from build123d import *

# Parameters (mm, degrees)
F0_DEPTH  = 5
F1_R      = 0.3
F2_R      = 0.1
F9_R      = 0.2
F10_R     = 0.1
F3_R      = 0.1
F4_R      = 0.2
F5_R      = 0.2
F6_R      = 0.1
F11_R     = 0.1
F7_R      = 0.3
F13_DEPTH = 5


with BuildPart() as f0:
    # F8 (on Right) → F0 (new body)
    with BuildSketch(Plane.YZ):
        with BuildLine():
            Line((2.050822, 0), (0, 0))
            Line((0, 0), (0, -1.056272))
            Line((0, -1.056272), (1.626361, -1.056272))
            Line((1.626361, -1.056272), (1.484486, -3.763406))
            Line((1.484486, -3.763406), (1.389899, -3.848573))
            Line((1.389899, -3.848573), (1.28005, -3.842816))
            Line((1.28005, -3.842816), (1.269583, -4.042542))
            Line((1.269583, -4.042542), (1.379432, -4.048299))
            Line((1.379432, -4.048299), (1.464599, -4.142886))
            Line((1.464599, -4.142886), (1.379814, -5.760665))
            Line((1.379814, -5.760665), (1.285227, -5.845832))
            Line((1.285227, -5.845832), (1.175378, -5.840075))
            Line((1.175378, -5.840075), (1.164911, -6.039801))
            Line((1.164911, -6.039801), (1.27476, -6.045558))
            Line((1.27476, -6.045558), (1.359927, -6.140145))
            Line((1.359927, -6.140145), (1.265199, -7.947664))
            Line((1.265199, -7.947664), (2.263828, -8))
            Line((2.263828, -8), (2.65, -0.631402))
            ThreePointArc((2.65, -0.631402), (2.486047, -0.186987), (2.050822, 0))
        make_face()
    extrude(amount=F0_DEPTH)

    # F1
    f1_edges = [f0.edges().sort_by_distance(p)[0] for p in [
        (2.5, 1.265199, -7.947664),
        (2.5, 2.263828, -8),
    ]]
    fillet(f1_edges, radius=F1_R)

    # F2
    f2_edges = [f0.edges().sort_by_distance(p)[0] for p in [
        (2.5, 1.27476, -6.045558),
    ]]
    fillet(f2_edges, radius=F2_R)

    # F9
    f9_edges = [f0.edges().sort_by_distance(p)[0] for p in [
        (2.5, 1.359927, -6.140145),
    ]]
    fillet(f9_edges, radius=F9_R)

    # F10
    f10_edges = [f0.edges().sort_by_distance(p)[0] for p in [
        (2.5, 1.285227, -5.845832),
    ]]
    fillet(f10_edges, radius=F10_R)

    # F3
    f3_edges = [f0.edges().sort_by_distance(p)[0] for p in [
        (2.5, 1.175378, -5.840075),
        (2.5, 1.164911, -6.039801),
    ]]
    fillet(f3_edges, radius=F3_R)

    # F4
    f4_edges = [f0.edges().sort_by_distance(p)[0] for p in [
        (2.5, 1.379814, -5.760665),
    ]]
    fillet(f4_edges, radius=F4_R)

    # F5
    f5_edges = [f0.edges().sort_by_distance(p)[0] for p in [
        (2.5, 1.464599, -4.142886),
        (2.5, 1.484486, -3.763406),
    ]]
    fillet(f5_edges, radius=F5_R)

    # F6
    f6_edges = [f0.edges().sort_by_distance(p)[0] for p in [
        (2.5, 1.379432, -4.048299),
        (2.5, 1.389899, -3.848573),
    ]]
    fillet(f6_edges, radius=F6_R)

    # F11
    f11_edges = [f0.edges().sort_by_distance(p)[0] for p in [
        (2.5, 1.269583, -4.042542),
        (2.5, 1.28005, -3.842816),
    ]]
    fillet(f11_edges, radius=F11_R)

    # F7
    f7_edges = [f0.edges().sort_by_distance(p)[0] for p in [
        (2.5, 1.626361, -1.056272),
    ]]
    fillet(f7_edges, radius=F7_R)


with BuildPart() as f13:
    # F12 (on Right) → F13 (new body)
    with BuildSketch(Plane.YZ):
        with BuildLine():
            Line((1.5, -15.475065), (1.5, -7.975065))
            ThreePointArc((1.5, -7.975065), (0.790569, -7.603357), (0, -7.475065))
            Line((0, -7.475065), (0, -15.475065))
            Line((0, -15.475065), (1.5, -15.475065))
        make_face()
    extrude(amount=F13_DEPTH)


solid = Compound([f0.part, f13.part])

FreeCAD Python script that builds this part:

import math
import FreeCAD as App
import Part
import Sketcher
from FreeCAD import Vector
Q = App.Units.Quantity


def edges_at(feature, points):
    """Names of the edges that pass closest to the given points."""
    edges = feature.Shape.Edges
    near = lambda p: min(range(len(edges)), key=lambda i: edges[i].distToShape(Part.Vertex(*p))[0])
    return sorted({f"Edge{near(p) + 1}" for p in points})

doc = App.newDocument("Part")
body = doc.addObject("PartDesign::Body", "Body")

# Sketch on YZ plane
sketch1 = body.newObject("Sketcher::SketchObject", "Sketch")
sketch1.AttachmentSupport = (doc.getObject("YZ_Plane"), [""])
sketch1.MapMode = "FlatFace"
sketch1.addGeometry(Part.LineSegment(Vector(2.05, 0, 0), Vector(0, 0, 0)), False)
sketch1.addGeometry(Part.LineSegment(Vector(0, 0, 0), Vector(0, -1.06, 0)), False)
sketch1.addGeometry(Part.LineSegment(Vector(0, -1.06, 0), Vector(1.63, -1.06, 0)), False)
sketch1.addGeometry(Part.LineSegment(Vector(1.63, -1.06, 0), Vector(1.48, -3.76, 0)), False)
sketch1.addGeometry(Part.LineSegment(Vector(1.48, -3.76, 0), Vector(1.39, -3.85, 0)), False)
sketch1.addGeometry(Part.LineSegment(Vector(1.39, -3.85, 0), Vector(1.28, -3.84, 0)), False)
sketch1.addGeometry(Part.LineSegment(Vector(1.28, -3.84, 0), Vector(1.27, -4.04, 0)), False)
sketch1.addGeometry(Part.LineSegment(Vector(1.27, -4.04, 0), Vector(1.38, -4.05, 0)), False)
sketch1.addGeometry(Part.LineSegment(Vector(1.38, -4.05, 0), Vector(1.46, -4.14, 0)), False)
sketch1.addGeometry(Part.LineSegment(Vector(1.46, -4.14, 0), Vector(1.38, -5.76, 0)), False)
sketch1.addGeometry(Part.LineSegment(Vector(1.38, -5.76, 0), Vector(1.29, -5.85, 0)), False)
sketch1.addGeometry(Part.LineSegment(Vector(1.29, -5.85, 0), Vector(1.18, -5.84, 0)), False)
sketch1.addGeometry(Part.LineSegment(Vector(1.18, -5.84, 0), Vector(1.16, -6.04, 0)), False)
sketch1.addGeometry(Part.LineSegment(Vector(1.16, -6.04, 0), Vector(1.27, -6.05, 0)), False)
sketch1.addGeometry(Part.LineSegment(Vector(1.27, -6.05, 0), Vector(1.36, -6.14, 0)), False)
sketch1.addGeometry(Part.LineSegment(Vector(1.36, -6.14, 0), Vector(1.27, -7.95, 0)), False)
sketch1.addGeometry(Part.LineSegment(Vector(1.27, -7.95, 0), Vector(2.26, -8, 0)), False)
sketch1.addGeometry(Part.LineSegment(Vector(2.26, -8, 0), Vector(2.65, -0.63, 0)), False)
sketch1.addGeometry(Part.ArcOfCircle(Part.Circle(Vector(2.05, -0.6, 0), Vector(0, 0, 1), 0.6), math.radians(-3), math.radians(90)), False)
sketch1.addConstraint(Sketcher.Constraint("Coincident", 0, 2, 1, 1))
sketch1.addConstraint(Sketcher.Constraint("Coincident", 1, 2, 2, 1))
sketch1.addConstraint(Sketcher.Constraint("Coincident", 2, 2, 3, 1))
sketch1.addConstraint(Sketcher.Constraint("Coincident", 3, 2, 4, 1))
sketch1.addConstraint(Sketcher.Constraint("Coincident", 4, 2, 5, 1))
sketch1.addConstraint(Sketcher.Constraint("Coincident", 5, 2, 6, 1))
sketch1.addConstraint(Sketcher.Constraint("Coincident", 6, 2, 7, 1))
sketch1.addConstraint(Sketcher.Constraint("Coincident", 7, 2, 8, 1))
sketch1.addConstraint(Sketcher.Constraint("Coincident", 8, 2, 9, 1))
sketch1.addConstraint(Sketcher.Constraint("Coincident", 9, 2, 10, 1))
sketch1.addConstraint(Sketcher.Constraint("Coincident", 10, 2, 11, 1))
sketch1.addConstraint(Sketcher.Constraint("Coincident", 11, 2, 12, 1))
sketch1.addConstraint(Sketcher.Constraint("Coincident", 12, 2, 13, 1))
sketch1.addConstraint(Sketcher.Constraint("Coincident", 13, 2, 14, 1))
sketch1.addConstraint(Sketcher.Constraint("Coincident", 14, 2, 15, 1))
sketch1.addConstraint(Sketcher.Constraint("Coincident", 15, 2, 16, 1))
sketch1.addConstraint(Sketcher.Constraint("Coincident", 16, 2, 17, 1))
sketch1.addConstraint(Sketcher.Constraint("Tangent", 17, 2, 18, 1))
sketch1.addConstraint(Sketcher.Constraint("Tangent", 18, 2, 0, 1))
sketch1.addConstraint(Sketcher.Constraint("Horizontal", 0))
sketch1.addConstraint(Sketcher.Constraint("Vertical", 1))
sketch1.addConstraint(Sketcher.Constraint("Horizontal", 2))
sketch1.addConstraint(Sketcher.Constraint("Coincident", 0, 2, -1, 1))
sketch1.addConstraint(Sketcher.Constraint("Perpendicular", 3, 5))
sketch1.addConstraint(Sketcher.Constraint("Perpendicular", 5, 6))
sketch1.addConstraint(Sketcher.Constraint("Perpendicular", 6, 7))
sketch1.addConstraint(Sketcher.Constraint("Perpendicular", 4, 8))
sketch1.addConstraint(Sketcher.Constraint("Perpendicular", 7, 9))
sketch1.addConstraint(Sketcher.Constraint("Perpendicular", 8, 10))
sketch1.addConstraint(Sketcher.Constraint("Perpendicular", 9, 11))
sketch1.addConstraint(Sketcher.Constraint("Perpendicular", 11, 12))
sketch1.addConstraint(Sketcher.Constraint("Perpendicular", 12, 13))
sketch1.addConstraint(Sketcher.Constraint("Perpendicular", 10, 14))
sketch1.addConstraint(Sketcher.Constraint("Perpendicular", 13, 15))
sketch1.addConstraint(Sketcher.Constraint("Perpendicular", 15, 16))
sketch1.addConstraint(Sketcher.Constraint("Perpendicular", 16, 17))
sketch1.addConstraint(Sketcher.Constraint("Equal", 5, 7))
sketch1.addConstraint(Sketcher.Constraint("Equal", 4, 8))
sketch1.addConstraint(Sketcher.Constraint("Equal", 8, 10))
sketch1.addConstraint(Sketcher.Constraint("Equal", 7, 11))
sketch1.addConstraint(Sketcher.Constraint("Equal", 6, 12))
sketch1.addConstraint(Sketcher.Constraint("Equal", 11, 13))
sketch1.addConstraint(Sketcher.Constraint("Equal", 10, 14))
sketch1.addConstraint(Sketcher.Constraint("Radius", 18, Q("0.599999 mm")))
sketch1.addConstraint(Sketcher.Constraint("Angle", 3, Q("-93.000003 deg")))
sketch1.addConstraint(Sketcher.Constraint("Distance", 16, Q("0.999999 mm")))
sketch1.addConstraint(Sketcher.Constraint("DistanceY", 16, 2, -1, 1, Q("8 mm")))
sketch1.addConstraint(Sketcher.Constraint("Distance", 6, Q("0.2 mm")))
sketch1.addConstraint(Sketcher.Constraint("Distance", 5, Q("0.11 mm")))
sketch1.addConstraint(Sketcher.Constraint("Distance", 9, Q("1.619999 mm")))
sketch1.addConstraint(Sketcher.Constraint("Distance", 15, Q("1.81 mm")))
sketch1.addConstraint(Sketcher.Constraint("DistanceX", -1, 1, 17, 2, Q("2.65 mm")))
sketch1.addConstraint(Sketcher.Constraint("DistanceX", 2, 1, 2, 2, Q("1.626361 mm")))
sketch1.addConstraint(Sketcher.Constraint("DistanceX", -1, 1, 4, 2, Q("1.389899 mm")))
sketch1.addConstraint(Sketcher.Constraint("DistanceY", 7, 2, -1, 1, Q("4.048299 mm")))
pad1 = body.newObject("PartDesign::Pad", "Pad")
pad1.Profile = sketch1
pad1.Length = 5
doc.recompute()

fillet = body.newObject("PartDesign::Fillet", "Fillet")
fillet.Base = (pad1, edges_at(pad1, [(2.5, 1.265, -7.948), (2.5, 2.264, -8)]))
fillet.Radius = 0.3
doc.recompute()

fillet2 = body.newObject("PartDesign::Fillet", "Fillet001")
fillet2.Base = (fillet, edges_at(fillet, [(2.5, 1.275, -6.046)]))
fillet2.Radius = 0.1
doc.recompute()

fillet3 = body.newObject("PartDesign::Fillet", "Fillet002")
fillet3.Base = (fillet2, edges_at(fillet2, [(2.5, 1.36, -6.14)]))
fillet3.Radius = 0.2
doc.recompute()

fillet4 = body.newObject("PartDesign::Fillet", "Fillet003")
fillet4.Base = (fillet3, edges_at(fillet3, [(2.5, 1.285, -5.846)]))
fillet4.Radius = 0.1
doc.recompute()

fillet5 = body.newObject("PartDesign::Fillet", "Fillet004")
fillet5.Base = (fillet4, edges_at(fillet4, [(2.5, 1.175, -5.84), (2.5, 1.165, -6.04)]))
fillet5.Radius = 0.1
doc.recompute()

fillet6 = body.newObject("PartDesign::Fillet", "Fillet005")
fillet6.Base = (fillet5, edges_at(fillet5, [(2.5, 1.38, -5.761)]))
fillet6.Radius = 0.2
doc.recompute()

fillet7 = body.newObject("PartDesign::Fillet", "Fillet006")
fillet7.Base = (fillet6, edges_at(fillet6, [(2.5, 1.465, -4.143), (2.5, 1.484, -3.763)]))
fillet7.Radius = 0.2
doc.recompute()

fillet8 = body.newObject("PartDesign::Fillet", "Fillet007")
fillet8.Base = (fillet7, edges_at(fillet7, [(2.5, 1.379, -4.048), (2.5, 1.39, -3.849)]))
fillet8.Radius = 0.1
doc.recompute()

fillet9 = body.newObject("PartDesign::Fillet", "Fillet008")
fillet9.Base = (fillet8, edges_at(fillet8, [(2.5, 1.27, -4.043), (2.5, 1.28, -3.843)]))
fillet9.Radius = 0.1
doc.recompute()

fillet10 = body.newObject("PartDesign::Fillet", "Fillet009")
fillet10.Base = (fillet9, edges_at(fillet9, [(2.5, 1.626, -1.056)]))
fillet10.Radius = 0.3
body2 = doc.addObject("PartDesign::Body", "Body001")

# Sketch on YZ plane
sketch2 = body2.newObject("Sketcher::SketchObject", "Sketch001")
sketch2.AttachmentSupport = (doc.getObject("YZ_Plane001"), [""])
sketch2.MapMode = "FlatFace"
sketch2.addGeometry(Part.LineSegment(Vector(1.5, -15.5, 0), Vector(1.5, -8, 0)), False)
sketch2.addGeometry(Part.ArcOfCircle(Part.Circle(Vector(0, -10, 0), Vector(0, 0, 1), 2.5), math.radians(53), math.radians(90)), False)
sketch2.addGeometry(Part.LineSegment(Vector(0, -7.5, 0), Vector(0, -15.5, 0)), False)
sketch2.addGeometry(Part.LineSegment(Vector(0, -15.5, 0), Vector(1.5, -15.5, 0)), False)
sketch2.addConstraint(Sketcher.Constraint("Coincident", 0, 2, 1, 1))
sketch2.addConstraint(Sketcher.Constraint("Coincident", 1, 2, 2, 1))
sketch2.addConstraint(Sketcher.Constraint("Coincident", 2, 2, 3, 1))
sketch2.addConstraint(Sketcher.Constraint("Coincident", 3, 2, 0, 1))
sketch2.addConstraint(Sketcher.Constraint("Vertical", 0))
sketch2.addConstraint(Sketcher.Constraint("Vertical", 2))
sketch2.addConstraint(Sketcher.Constraint("Horizontal", 3))
sketch2.addConstraint(Sketcher.Constraint("PointOnObject", 1, 2, -2))
sketch2.addConstraint(Sketcher.Constraint("DistanceY", 2, 2, 2, 1, Q("8 mm")))
sketch2.addConstraint(Sketcher.Constraint("DistanceX", 3, 1, 3, 2, Q("1.5 mm")))
sketch2.addConstraint(Sketcher.Constraint("DistanceY", 0, 1, 0, 2, Q("7.5 mm")))
sketch2.addConstraint(Sketcher.Constraint("Radius", 1, Q("2.500007 mm")))
sketch2.addConstraint(Sketcher.Constraint("DistanceY", 1, 3, -1, 1, Q("9.975072 mm")))
pad2 = body2.newObject("PartDesign::Pad", "Pad001")
pad2.Profile = sketch2
pad2.Length = 5

doc.recompute()
